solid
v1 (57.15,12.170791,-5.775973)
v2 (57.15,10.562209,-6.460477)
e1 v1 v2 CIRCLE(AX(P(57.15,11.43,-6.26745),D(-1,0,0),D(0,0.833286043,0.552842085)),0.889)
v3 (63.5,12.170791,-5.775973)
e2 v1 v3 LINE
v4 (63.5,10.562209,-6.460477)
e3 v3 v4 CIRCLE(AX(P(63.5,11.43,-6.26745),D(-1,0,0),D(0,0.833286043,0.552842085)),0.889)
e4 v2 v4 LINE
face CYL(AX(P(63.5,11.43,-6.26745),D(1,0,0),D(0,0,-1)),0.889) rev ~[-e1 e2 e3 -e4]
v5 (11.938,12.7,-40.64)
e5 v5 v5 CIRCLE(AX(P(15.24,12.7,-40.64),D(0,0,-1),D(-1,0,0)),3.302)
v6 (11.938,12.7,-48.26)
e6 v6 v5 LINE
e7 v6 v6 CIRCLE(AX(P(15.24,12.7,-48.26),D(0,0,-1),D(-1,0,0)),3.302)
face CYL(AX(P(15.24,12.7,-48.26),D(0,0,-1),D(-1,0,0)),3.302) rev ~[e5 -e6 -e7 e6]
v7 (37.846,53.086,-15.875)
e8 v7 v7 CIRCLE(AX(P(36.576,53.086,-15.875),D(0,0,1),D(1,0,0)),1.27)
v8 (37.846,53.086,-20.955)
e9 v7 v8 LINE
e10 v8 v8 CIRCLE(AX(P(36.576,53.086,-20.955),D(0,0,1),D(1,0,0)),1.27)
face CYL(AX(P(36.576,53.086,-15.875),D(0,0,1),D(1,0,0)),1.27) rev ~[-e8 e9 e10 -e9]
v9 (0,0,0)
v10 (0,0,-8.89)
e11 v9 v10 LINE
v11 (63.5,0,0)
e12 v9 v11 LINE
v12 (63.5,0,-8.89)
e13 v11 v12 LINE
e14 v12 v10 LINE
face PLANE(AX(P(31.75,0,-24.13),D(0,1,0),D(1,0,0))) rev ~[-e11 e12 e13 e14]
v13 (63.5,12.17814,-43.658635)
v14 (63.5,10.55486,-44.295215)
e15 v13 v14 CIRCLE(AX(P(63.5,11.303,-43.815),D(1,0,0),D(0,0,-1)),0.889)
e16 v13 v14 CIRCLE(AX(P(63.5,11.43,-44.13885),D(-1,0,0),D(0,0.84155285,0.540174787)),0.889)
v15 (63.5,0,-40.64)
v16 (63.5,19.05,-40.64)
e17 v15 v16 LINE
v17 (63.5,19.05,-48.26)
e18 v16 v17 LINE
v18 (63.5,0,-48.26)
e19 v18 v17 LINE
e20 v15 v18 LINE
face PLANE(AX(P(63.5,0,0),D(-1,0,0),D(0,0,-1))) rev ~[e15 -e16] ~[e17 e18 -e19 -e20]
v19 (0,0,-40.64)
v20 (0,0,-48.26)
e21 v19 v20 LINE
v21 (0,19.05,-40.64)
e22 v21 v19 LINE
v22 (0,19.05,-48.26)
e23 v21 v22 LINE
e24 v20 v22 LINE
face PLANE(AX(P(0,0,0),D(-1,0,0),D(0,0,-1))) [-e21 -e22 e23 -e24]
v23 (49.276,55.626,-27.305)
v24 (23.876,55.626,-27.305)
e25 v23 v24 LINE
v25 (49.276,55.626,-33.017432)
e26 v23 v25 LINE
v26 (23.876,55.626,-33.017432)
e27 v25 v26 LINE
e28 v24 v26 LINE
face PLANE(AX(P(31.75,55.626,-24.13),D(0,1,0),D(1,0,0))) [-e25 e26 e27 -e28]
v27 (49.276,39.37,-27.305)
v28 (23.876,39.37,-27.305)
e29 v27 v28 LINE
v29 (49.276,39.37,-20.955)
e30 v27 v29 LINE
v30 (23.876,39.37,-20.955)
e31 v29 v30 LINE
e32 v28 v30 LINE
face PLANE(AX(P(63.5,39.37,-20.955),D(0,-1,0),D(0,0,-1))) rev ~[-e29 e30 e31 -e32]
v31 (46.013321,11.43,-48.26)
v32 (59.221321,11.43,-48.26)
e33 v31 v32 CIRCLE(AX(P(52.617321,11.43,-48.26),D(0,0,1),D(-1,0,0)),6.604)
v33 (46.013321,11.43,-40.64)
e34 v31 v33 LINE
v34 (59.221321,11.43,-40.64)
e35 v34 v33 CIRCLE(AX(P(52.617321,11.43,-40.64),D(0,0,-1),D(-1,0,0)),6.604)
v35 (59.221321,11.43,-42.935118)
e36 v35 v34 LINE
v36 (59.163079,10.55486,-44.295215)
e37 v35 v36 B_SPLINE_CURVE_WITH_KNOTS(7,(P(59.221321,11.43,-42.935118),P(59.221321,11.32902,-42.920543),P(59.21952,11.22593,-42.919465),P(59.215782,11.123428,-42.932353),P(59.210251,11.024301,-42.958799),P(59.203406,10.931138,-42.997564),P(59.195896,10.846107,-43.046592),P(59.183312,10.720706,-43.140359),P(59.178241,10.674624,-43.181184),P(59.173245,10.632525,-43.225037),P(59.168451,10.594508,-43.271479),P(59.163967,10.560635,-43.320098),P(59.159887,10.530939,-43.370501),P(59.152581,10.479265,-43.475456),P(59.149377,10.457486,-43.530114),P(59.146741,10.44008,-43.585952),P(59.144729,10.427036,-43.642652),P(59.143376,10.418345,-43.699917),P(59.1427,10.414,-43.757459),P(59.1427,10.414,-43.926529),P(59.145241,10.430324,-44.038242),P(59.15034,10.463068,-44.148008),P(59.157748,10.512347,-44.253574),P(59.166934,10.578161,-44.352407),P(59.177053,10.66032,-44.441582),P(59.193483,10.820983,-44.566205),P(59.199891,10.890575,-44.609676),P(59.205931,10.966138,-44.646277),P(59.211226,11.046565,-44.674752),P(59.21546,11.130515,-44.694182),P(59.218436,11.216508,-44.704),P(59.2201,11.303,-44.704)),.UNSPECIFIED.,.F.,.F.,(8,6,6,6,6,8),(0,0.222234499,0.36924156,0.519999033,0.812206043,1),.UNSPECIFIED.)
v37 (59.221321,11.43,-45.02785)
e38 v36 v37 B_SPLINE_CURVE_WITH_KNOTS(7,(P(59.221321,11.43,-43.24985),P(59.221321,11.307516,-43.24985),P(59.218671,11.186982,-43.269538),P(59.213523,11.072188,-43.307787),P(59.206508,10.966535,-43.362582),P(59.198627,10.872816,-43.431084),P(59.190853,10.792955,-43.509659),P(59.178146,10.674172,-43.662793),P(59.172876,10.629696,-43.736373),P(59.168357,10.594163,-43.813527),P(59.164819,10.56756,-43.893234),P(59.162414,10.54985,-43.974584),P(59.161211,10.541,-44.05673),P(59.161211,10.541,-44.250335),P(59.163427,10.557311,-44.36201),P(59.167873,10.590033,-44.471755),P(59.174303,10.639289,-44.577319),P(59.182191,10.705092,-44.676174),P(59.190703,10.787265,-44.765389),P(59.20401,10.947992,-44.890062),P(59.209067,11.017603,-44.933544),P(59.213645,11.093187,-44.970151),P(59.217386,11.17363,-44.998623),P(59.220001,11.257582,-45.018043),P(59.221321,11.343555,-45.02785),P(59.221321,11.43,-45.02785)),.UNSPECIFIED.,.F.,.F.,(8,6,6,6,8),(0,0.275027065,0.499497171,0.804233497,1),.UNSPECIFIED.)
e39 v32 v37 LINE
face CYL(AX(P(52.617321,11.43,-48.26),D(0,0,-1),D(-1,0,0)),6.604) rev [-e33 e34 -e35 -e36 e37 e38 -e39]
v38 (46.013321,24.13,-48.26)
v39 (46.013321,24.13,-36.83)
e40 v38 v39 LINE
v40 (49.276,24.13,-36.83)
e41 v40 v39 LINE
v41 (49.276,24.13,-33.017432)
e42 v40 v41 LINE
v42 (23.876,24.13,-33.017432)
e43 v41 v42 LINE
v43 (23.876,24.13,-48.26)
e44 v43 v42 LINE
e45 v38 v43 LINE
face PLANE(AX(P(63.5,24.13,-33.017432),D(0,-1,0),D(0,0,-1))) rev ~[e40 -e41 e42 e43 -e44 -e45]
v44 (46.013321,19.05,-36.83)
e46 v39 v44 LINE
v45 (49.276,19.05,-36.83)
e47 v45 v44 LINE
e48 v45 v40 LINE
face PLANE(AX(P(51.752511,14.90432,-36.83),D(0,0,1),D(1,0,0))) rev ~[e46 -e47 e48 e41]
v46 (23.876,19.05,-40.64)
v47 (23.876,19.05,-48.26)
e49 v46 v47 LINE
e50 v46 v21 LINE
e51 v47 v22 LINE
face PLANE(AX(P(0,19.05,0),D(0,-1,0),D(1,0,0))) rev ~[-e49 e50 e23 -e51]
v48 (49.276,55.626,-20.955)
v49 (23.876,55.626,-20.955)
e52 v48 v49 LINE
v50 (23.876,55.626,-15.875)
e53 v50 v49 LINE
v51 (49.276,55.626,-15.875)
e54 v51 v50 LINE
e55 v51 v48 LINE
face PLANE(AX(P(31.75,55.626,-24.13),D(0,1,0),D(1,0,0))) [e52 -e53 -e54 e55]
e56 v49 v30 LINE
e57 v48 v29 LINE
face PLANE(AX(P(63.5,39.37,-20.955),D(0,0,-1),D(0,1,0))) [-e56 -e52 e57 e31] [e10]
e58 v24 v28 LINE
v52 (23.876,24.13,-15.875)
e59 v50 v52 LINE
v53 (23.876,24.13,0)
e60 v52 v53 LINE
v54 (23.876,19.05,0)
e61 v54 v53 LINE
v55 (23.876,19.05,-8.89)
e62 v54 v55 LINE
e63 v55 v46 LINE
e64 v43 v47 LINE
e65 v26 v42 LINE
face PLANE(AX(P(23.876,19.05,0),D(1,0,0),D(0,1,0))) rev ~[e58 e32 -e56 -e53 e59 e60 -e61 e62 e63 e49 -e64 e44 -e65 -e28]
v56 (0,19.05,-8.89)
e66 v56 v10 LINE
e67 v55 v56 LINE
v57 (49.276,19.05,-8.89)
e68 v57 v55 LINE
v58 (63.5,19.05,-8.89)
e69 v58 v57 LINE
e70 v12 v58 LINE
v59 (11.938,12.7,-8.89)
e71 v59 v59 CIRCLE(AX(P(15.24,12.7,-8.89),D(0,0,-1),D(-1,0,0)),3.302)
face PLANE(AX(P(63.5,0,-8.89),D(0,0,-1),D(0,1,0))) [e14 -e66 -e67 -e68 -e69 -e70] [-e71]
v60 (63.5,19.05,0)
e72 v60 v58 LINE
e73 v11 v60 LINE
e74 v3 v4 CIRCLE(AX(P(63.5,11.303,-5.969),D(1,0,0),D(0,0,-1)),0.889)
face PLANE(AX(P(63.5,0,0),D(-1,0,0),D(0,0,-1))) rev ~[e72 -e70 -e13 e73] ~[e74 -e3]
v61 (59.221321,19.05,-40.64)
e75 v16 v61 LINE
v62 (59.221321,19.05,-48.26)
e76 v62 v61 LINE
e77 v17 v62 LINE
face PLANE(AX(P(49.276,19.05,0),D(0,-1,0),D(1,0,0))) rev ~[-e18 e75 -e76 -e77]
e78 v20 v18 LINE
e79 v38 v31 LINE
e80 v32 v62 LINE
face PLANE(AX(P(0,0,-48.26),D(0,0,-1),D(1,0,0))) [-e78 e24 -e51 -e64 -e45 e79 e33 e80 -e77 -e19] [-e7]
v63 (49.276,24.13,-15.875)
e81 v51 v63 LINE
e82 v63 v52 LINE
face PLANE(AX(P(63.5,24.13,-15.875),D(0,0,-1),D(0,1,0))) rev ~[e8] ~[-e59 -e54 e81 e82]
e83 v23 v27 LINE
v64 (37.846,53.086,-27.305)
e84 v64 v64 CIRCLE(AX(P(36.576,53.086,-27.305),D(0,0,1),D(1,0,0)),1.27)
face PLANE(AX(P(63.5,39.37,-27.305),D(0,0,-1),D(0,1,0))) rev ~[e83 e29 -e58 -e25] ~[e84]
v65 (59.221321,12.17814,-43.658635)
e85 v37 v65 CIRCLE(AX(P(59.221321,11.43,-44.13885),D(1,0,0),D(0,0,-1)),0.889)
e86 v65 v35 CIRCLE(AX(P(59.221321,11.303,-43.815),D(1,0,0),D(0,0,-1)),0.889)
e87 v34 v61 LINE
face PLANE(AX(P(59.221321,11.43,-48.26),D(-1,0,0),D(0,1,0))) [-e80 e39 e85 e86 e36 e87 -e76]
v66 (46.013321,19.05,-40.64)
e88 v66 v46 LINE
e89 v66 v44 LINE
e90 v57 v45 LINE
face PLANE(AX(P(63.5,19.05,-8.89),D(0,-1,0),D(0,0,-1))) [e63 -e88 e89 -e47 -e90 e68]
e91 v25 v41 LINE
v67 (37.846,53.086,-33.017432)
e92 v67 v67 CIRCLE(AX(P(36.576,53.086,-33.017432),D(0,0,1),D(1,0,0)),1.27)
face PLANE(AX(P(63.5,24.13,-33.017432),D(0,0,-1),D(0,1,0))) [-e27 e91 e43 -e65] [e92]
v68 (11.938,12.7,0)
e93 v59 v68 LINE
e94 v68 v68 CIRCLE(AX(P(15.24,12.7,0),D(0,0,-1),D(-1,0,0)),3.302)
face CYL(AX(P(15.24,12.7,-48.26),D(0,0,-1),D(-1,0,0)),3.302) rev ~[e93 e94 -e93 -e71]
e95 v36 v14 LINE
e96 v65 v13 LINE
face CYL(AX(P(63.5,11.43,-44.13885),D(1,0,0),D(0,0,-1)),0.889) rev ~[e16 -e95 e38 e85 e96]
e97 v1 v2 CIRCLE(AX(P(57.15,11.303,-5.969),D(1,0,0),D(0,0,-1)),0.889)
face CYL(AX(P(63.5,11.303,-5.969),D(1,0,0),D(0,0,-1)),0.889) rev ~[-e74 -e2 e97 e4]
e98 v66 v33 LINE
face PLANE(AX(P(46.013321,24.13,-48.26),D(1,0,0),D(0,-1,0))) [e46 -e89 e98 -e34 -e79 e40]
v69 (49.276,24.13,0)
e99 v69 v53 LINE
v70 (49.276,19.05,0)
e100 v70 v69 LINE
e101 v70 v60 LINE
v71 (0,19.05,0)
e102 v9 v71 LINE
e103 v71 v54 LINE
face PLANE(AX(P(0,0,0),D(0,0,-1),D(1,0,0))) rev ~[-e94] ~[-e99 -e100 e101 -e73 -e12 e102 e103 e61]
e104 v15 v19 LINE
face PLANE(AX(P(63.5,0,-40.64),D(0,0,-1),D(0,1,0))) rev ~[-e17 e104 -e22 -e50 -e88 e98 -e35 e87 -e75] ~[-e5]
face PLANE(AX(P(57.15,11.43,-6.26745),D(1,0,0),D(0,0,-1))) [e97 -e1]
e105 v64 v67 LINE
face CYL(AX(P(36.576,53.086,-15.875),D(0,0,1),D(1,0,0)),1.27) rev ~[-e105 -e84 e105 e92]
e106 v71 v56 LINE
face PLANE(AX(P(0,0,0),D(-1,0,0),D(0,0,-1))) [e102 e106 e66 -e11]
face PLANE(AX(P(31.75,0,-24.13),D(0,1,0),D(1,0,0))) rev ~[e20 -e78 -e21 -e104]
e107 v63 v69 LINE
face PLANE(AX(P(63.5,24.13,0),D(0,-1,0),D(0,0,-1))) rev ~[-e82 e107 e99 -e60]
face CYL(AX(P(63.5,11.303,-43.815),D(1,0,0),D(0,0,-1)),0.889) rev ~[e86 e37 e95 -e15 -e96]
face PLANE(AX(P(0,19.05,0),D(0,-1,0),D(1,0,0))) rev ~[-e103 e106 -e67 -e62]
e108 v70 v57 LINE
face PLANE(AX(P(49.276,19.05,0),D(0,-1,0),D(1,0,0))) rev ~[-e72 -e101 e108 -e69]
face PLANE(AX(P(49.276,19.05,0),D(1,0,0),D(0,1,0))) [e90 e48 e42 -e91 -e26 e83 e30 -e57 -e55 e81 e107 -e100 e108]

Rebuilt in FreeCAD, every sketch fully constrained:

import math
import FreeCAD as App
import Part
import Sketcher

V = App.Vector
Q = App.Units.Quantity


def add_polygon(sketch, points):
    """Adds a closed chain of lines whose ends are joined by coincident constraints."""
    first, n = sketch.GeometryCount, len(points)
    for a, b in zip(points, points[1:] + points[:1]):
        sketch.addGeometry(Part.LineSegment(App.Vector(*a, 0), App.Vector(*b, 0)), False)
    for i in range(n):
        sketch.addConstraint(Sketcher.Constraint("Coincident", first + i, 2, first + (i + 1) % n, 1))

doc = App.newDocument("Part")
body = doc.addObject("PartDesign::Body", "Body")

sketch1 = body.newObject("Sketcher::SketchObject", "Sketch")
sketch1.AttachmentSupport = (doc.getObject("XZ_Plane"), [""])
sketch1.MapMode = "FlatFace"
add_polygon(sketch1, [(0, -48.26), (0, 0), (63.5, 0), (63.5, -48.26)])
sketch1.addConstraint([
    Sketcher.Constraint("Vertical", 0),
    Sketcher.Constraint("Horizontal", 1),
    Sketcher.Constraint("Vertical", 2),
    Sketcher.Constraint("Horizontal", 3),
    Sketcher.Constraint("Coincident", 0, 2, -1, 1),
    Sketcher.Constraint("DistanceX", 1, 1, 1, 2, Q("2.5 in")),
    Sketcher.Constraint("DistanceY", 0, 1, 0, 2, Q("1.9 in")),
])
pad1 = body.newObject("PartDesign::Pad", "Pad")
pad1.Profile = sketch1
pad1.Length = Q("2.19 in")
pad1.Reversed = True

sketch2 = body.newObject("Sketcher::SketchObject", "Sketch001")
sketch2.AttachmentSupport = (doc.getObject("YZ_Plane"), [""])
sketch2.MapMode = "FlatFace"
sketch2.AttachmentOffset = App.Placement(V(0, 0, 2.5 * 25.4), App.Rotation())
add_polygon(sketch2, [(19.05, -8.89), (0, -8.89), (0, -40.64), (19.05, -40.64)])
add_polygon(sketch2, [(55.626, -33.017432), (24.13, -33.017432), (24.13, -48.26), (55.626, -48.26)])
add_polygon(sketch2, [(55.626, -20.955), (39.37, -20.955), (39.37, -27.305), (55.626, -27.305)])
add_polygon(sketch2, [(55.626, 0), (24.13, 0), (24.13, -15.875), (55.626, -15.875)])
sketch2.addConstraint([
    Sketcher.Constraint("Horizontal", 0),
    Sketcher.Constraint("Vertical", 1),
    Sketcher.Constraint("Horizontal", 2),
    Sketcher.Constraint("Vertical", 3),
    Sketcher.Constraint("Horizontal", 4),
    Sketcher.Constraint("Vertical", 5),
    Sketcher.Constraint("Horizontal", 6),
    Sketcher.Constraint("Vertical", 7),
    Sketcher.Constraint("Horizontal", 8),
    Sketcher.Constraint("Vertical", 9),
    Sketcher.Constraint("Horizontal", 10),
    Sketcher.Constraint("Vertical", 11),
    Sketcher.Constraint("Horizontal", 12),
    Sketcher.Constraint("Vertical", 13),
    Sketcher.Constraint("Horizontal", 14),
    Sketcher.Constraint("Vertical", 15),
    Sketcher.Constraint("PointOnObject", 0, 2, -2),
    Sketcher.Constraint("PointOnObject", 12, 2, -1),
    Sketcher.Constraint("Vertical", 7, 2, 10, 2),
    Sketcher.Constraint("Vertical", 5, 2, 12, 2),
    Sketcher.Constraint("Vertical", 11, 2, 14, 2),
    Sketcher.Constraint("DistanceX", 0, 2, 0, 1, Q("0.75 in")),
    Sketcher.Constraint("DistanceX", 4, 2, 4, 1, Q("1.24 in")),
    Sketcher.Constraint("DistanceX", 8, 2, 8, 1, Q("0.64 in")),
    Sketcher.Constraint("DistanceY", 1, 2, 1, 1, Q("1.25 in")),
    Sketcher.Constraint("DistanceY", 9, 2, 9, 1, Q("0.25 in")),
    Sketcher.Constraint("DistanceY", 1, 2, -1, 1, Q("1.6 in")),
    Sketcher.Constraint("DistanceY", 5, 2, -1, 1, Q("1.9 in")),
    Sketcher.Constraint("DistanceX", 2, 2, 4, 2, Q("0.2 in")),
    Sketcher.Constraint("DistanceY", 8, 2, 13, 2, Q("0.2 in")),
    Sketcher.Constraint("DistanceY", 13, 2, 13, 1, Q("0.625 in")),
    Sketcher.Constraint("DistanceY", 5, 2, 5, 1, Q("15.242568 mm")),
])
pocket1 = body.newObject("PartDesign::Pocket", "Pocket")
pocket1.Profile = sketch2
pocket1.Type = "ThroughAll"

sketch3 = body.newObject("Sketcher::SketchObject", "Sketch002")
sketch3.AttachmentSupport = (doc.getObject("XY_Plane"), [""])
sketch3.MapMode = "FlatFace"
add_polygon(sketch3, [(0, 55.626), (0, 19.05), (23.876, 19.05), (23.876, 55.626)])
add_polygon(sketch3, [(49.276, 55.626), (49.276, 19.05), (63.5, 19.05), (63.5, 55.626)])
sketch3.addConstraint([
    Sketcher.Constraint("Vertical", 0),
    Sketcher.Constraint("Horizontal", 1),
    Sketcher.Constraint("Vertical", 2),
    Sketcher.Constraint("Horizontal", 3),
    Sketcher.Constraint("Vertical", 4),
    Sketcher.Constraint("Horizontal", 5),
    Sketcher.Constraint("Vertical", 6),
    Sketcher.Constraint("Horizontal", 7),
    Sketcher.Constraint("PointOnObject", 0, 2, -2),
    Sketcher.Constraint("Horizontal", 1, 2, 4, 2),
    Sketcher.Constraint("Horizontal", 3, 2, 6, 2),
    Sketcher.Constraint("DistanceX", 1, 2, 4, 2, Q("1 in")),
    Sketcher.Constraint("DistanceX", 1, 1, 1, 2, Q("0.94 in")),
    Sketcher.Constraint("DistanceX", 5, 1, 5, 2, Q("0.56 in")),
    Sketcher.Constraint("DistanceY", 0, 2, 0, 1, Q("1.44 in")),
    Sketcher.Constraint("DistanceY", -1, 1, 0, 2, Q("0.75 in")),
])
pocket2 = body.newObject("PartDesign::Pocket", "Pocket001")
pocket2.Profile = sketch3
pocket2.Type = "ThroughAll"

sketch4 = body.newObject("Sketcher::SketchObject", "Sketch003")
sketch4.AttachmentSupport = (doc.getObject("XY_Plane"), [""])
sketch4.MapMode = "FlatFace"
sketch4.AttachmentOffset = App.Placement(V(0, 0, -0.625 * 25.4), App.Rotation())
sketch4.addGeometry(Part.Circle(V(36.576, 53.086, 0), V(0, 0, 1), 1.27), False)
sketch4.addConstraint([
    Sketcher.Constraint("Diameter", 0, Q("0.1 in")),
    Sketcher.Constraint("DistanceX", -1, 1, 0, 3, Q("1.44 in")),
    Sketcher.Constraint("DistanceY", -1, 1, 0, 3, Q("2.09 in")),
])
pocket3 = body.newObject("PartDesign::Pocket", "Pocket002")
pocket3.Profile = sketch4
pocket3.Type = "ThroughAll"

sketch5 = body.newObject("Sketcher::SketchObject", "Sketch004")
sketch5.AttachmentSupport = (doc.getObject("XY_Plane"), [""])
sketch5.MapMode = "FlatFace"
sketch5.AttachmentOffset = App.Placement(V(0, 0, -1.9 * 25.4), App.Rotation())
sketch5.addGeometry(Part.Circle(V(15.24, 12.7, 0), V(0, 0, 1), 3.302), False)
sketch5.addConstraint([
    Sketcher.Constraint("Diameter", 0, Q("0.26 in")),
    Sketcher.Constraint("DistanceX", -1, 1, 0, 3, Q("0.6 in")),
    Sketcher.Constraint("DistanceY", -1, 1, 0, 3, Q("0.5 in")),
])
pocket4 = body.newObject("PartDesign::Pocket", "Pocket003")
pocket4.Profile = sketch5
pocket4.Type = "UpToFirst"
pocket4.Reversed = True

sketch6 = body.newObject("Sketcher::SketchObject", "Sketch005")
sketch6.AttachmentSupport = (doc.getObject("XY_Plane"), [""])
sketch6.MapMode = "FlatFace"
sketch6.AttachmentOffset = App.Placement(V(0, 0, -1.9 * 25.4), App.Rotation())
sketch6.addGeometry(Part.Circle(V(15.24, 12.7, 0), V(0, 0, 1), 3.302), False)
sketch6.addConstraint([
    Sketcher.Constraint("Diameter", 0, Q("0.26 in")),
    Sketcher.Constraint("DistanceX", -1, 1, 0, 3, Q("0.6 in")),
    Sketcher.Constraint("DistanceY", -1, 1, 0, 3, Q("0.5 in")),
])
pocket5 = body.newObject("PartDesign::Pocket", "Pocket004")
pocket5.Profile = sketch6
pocket5.Type = "ThroughAll"
pocket5.Reversed = True

sketch7 = body.newObject("Sketcher::SketchObject", "Sketch006")
sketch7.AttachmentSupport = (doc.getObject("XY_Plane"), [""])
sketch7.MapMode = "FlatFace"
sketch7.AttachmentOffset = App.Placement(V(0, 0, -1.9 * 25.4), App.Rotation())
sketch7.addGeometry([
    Part.LineSegment(V(46.013321, 24.13, 0), V(49.276, 24.13, 0)),
    Part.LineSegment(V(49.276, 24.13, 0), V(49.276, 19.05, 0)),
    Part.LineSegment(V(49.276, 19.05, 0), V(59.221321, 19.05, 0)),
    Part.LineSegment(V(59.221321, 19.05, 0), V(59.221321, 11.43, 0)),
    Part.ArcOfCircle(Part.Circle(V(52.617321, 11.43, 0), V(0, 0, 1), 6.604), math.radians(180), math.radians(360)),
    Part.LineSegment(V(46.013321, 11.43, 0), V(46.013321, 24.13, 0)),
], False)
sketch7.addConstraint([
    Sketcher.Constraint("Coincident", 0, 2, 1, 1),
    Sketcher.Constraint("Coincident", 1, 2, 2, 1),
    Sketcher.Constraint("Coincident", 2, 2, 3, 1),
    Sketcher.Constraint("Tangent", 3, 2, 4, 2),
    Sketcher.Constraint("Tangent", 4, 1, 5, 1),
    Sketcher.Constraint("Coincident", 5, 2, 0, 1),
    Sketcher.Constraint("Horizontal", 0),
    Sketcher.Constraint("Vertical", 1),
    Sketcher.Constraint("Horizontal", 2),
    Sketcher.Constraint("Vertical", 3),
    Sketcher.Constraint("Vertical", 5),
    Sketcher.Constraint("Radius", 4, Q("0.26 in")),
    Sketcher.Constraint("DistanceY", 1, 2, 1, 1, Q("0.2 in")),
    Sketcher.Constraint("DistanceY", 3, 2, 3, 1, Q("0.3 in")),
    Sketcher.Constraint("DistanceY", -1, 1, 4, 3, Q("0.45 in")),
    Sketcher.Constraint("DistanceX", -1, 1, 0, 2, Q("1.94 in")),
    Sketcher.Constraint("DistanceX", 0, 1, 0, 2, Q("3.262679 mm")),
])
pocket6 = body.newObject("PartDesign::Pocket", "Pocket005")
pocket6.Profile = sketch7
pocket6.Length = Q("0.45 in")
pocket6.Reversed = True

sketch8 = body.newObject("Sketcher::SketchObject", "Sketch007")
sketch8.AttachmentSupport = (doc.getObject("YZ_Plane"), [""])
sketch8.MapMode = "FlatFace"
sketch8.AttachmentOffset = App.Placement(V(0, 0, 2.5 * 25.4), App.Rotation())
sketch8.addGeometry([
    Part.Circle(V(11.43, -6.26745, 0), V(0, 0, 1), 0.889),
    Part.Circle(V(11.43, -44.13885, 0), V(0, 0, 1), 0.889),
], False)
sketch8.addConstraint([
    Sketcher.Constraint("Equal", 0, 1),
    Sketcher.Constraint("Vertical", 0, 3, 1, 3),
    Sketcher.Constraint("Diameter", 0, Q("0.07 in")),
    Sketcher.Constraint("DistanceX", -1, 1, 0, 3, Q("0.45 in")),
    Sketcher.Constraint("DistanceY", 1, 3, 0, 3, Q("1.491 in")),
    Sketcher.Constraint("DistanceY", 0, 3, -1, 1, Q("6.26745 mm")),
])
pocket7 = body.newObject("PartDesign::Pocket", "Pocket006")
pocket7.Profile = sketch8
pocket7.Length = Q("0.25 in")

sketch9 = body.newObject("Sketcher::SketchObject", "Sketch008")
sketch9.AttachmentSupport = (doc.getObject("YZ_Plane"), [""])
sketch9.MapMode = "FlatFace"
sketch9.AttachmentOffset = App.Placement(V(0, 0, 2.5 * 25.4), App.Rotation())
sketch9.addGeometry([
    Part.Circle(V(11.303, -5.969, 0), V(0, 0, 1), 0.889),
    Part.Circle(V(11.303, -43.815, 0), V(0, 0, 1), 0.889),
], False)
sketch9.addConstraint([
    Sketcher.Constraint("Equal", 0, 1),
    Sketcher.Constraint("Vertical", 0, 3, 1, 3),
    Sketcher.Constraint("Diameter", 0, Q("0.07 in")),
    Sketcher.Constraint("DistanceY", 1, 3, 0, 3, Q("1.49 in")),
    Sketcher.Constraint("DistanceX", -1, 1, 0, 3, Q("0.445 in")),
    Sketcher.Constraint("DistanceY", 0, 3, -1, 1, Q("0.235 in")),
])
pocket8 = body.newObject("PartDesign::Pocket", "Pocket007")
pocket8.Profile = sketch9
pocket8.Length = Q("0.25 in")

doc.recompute()
